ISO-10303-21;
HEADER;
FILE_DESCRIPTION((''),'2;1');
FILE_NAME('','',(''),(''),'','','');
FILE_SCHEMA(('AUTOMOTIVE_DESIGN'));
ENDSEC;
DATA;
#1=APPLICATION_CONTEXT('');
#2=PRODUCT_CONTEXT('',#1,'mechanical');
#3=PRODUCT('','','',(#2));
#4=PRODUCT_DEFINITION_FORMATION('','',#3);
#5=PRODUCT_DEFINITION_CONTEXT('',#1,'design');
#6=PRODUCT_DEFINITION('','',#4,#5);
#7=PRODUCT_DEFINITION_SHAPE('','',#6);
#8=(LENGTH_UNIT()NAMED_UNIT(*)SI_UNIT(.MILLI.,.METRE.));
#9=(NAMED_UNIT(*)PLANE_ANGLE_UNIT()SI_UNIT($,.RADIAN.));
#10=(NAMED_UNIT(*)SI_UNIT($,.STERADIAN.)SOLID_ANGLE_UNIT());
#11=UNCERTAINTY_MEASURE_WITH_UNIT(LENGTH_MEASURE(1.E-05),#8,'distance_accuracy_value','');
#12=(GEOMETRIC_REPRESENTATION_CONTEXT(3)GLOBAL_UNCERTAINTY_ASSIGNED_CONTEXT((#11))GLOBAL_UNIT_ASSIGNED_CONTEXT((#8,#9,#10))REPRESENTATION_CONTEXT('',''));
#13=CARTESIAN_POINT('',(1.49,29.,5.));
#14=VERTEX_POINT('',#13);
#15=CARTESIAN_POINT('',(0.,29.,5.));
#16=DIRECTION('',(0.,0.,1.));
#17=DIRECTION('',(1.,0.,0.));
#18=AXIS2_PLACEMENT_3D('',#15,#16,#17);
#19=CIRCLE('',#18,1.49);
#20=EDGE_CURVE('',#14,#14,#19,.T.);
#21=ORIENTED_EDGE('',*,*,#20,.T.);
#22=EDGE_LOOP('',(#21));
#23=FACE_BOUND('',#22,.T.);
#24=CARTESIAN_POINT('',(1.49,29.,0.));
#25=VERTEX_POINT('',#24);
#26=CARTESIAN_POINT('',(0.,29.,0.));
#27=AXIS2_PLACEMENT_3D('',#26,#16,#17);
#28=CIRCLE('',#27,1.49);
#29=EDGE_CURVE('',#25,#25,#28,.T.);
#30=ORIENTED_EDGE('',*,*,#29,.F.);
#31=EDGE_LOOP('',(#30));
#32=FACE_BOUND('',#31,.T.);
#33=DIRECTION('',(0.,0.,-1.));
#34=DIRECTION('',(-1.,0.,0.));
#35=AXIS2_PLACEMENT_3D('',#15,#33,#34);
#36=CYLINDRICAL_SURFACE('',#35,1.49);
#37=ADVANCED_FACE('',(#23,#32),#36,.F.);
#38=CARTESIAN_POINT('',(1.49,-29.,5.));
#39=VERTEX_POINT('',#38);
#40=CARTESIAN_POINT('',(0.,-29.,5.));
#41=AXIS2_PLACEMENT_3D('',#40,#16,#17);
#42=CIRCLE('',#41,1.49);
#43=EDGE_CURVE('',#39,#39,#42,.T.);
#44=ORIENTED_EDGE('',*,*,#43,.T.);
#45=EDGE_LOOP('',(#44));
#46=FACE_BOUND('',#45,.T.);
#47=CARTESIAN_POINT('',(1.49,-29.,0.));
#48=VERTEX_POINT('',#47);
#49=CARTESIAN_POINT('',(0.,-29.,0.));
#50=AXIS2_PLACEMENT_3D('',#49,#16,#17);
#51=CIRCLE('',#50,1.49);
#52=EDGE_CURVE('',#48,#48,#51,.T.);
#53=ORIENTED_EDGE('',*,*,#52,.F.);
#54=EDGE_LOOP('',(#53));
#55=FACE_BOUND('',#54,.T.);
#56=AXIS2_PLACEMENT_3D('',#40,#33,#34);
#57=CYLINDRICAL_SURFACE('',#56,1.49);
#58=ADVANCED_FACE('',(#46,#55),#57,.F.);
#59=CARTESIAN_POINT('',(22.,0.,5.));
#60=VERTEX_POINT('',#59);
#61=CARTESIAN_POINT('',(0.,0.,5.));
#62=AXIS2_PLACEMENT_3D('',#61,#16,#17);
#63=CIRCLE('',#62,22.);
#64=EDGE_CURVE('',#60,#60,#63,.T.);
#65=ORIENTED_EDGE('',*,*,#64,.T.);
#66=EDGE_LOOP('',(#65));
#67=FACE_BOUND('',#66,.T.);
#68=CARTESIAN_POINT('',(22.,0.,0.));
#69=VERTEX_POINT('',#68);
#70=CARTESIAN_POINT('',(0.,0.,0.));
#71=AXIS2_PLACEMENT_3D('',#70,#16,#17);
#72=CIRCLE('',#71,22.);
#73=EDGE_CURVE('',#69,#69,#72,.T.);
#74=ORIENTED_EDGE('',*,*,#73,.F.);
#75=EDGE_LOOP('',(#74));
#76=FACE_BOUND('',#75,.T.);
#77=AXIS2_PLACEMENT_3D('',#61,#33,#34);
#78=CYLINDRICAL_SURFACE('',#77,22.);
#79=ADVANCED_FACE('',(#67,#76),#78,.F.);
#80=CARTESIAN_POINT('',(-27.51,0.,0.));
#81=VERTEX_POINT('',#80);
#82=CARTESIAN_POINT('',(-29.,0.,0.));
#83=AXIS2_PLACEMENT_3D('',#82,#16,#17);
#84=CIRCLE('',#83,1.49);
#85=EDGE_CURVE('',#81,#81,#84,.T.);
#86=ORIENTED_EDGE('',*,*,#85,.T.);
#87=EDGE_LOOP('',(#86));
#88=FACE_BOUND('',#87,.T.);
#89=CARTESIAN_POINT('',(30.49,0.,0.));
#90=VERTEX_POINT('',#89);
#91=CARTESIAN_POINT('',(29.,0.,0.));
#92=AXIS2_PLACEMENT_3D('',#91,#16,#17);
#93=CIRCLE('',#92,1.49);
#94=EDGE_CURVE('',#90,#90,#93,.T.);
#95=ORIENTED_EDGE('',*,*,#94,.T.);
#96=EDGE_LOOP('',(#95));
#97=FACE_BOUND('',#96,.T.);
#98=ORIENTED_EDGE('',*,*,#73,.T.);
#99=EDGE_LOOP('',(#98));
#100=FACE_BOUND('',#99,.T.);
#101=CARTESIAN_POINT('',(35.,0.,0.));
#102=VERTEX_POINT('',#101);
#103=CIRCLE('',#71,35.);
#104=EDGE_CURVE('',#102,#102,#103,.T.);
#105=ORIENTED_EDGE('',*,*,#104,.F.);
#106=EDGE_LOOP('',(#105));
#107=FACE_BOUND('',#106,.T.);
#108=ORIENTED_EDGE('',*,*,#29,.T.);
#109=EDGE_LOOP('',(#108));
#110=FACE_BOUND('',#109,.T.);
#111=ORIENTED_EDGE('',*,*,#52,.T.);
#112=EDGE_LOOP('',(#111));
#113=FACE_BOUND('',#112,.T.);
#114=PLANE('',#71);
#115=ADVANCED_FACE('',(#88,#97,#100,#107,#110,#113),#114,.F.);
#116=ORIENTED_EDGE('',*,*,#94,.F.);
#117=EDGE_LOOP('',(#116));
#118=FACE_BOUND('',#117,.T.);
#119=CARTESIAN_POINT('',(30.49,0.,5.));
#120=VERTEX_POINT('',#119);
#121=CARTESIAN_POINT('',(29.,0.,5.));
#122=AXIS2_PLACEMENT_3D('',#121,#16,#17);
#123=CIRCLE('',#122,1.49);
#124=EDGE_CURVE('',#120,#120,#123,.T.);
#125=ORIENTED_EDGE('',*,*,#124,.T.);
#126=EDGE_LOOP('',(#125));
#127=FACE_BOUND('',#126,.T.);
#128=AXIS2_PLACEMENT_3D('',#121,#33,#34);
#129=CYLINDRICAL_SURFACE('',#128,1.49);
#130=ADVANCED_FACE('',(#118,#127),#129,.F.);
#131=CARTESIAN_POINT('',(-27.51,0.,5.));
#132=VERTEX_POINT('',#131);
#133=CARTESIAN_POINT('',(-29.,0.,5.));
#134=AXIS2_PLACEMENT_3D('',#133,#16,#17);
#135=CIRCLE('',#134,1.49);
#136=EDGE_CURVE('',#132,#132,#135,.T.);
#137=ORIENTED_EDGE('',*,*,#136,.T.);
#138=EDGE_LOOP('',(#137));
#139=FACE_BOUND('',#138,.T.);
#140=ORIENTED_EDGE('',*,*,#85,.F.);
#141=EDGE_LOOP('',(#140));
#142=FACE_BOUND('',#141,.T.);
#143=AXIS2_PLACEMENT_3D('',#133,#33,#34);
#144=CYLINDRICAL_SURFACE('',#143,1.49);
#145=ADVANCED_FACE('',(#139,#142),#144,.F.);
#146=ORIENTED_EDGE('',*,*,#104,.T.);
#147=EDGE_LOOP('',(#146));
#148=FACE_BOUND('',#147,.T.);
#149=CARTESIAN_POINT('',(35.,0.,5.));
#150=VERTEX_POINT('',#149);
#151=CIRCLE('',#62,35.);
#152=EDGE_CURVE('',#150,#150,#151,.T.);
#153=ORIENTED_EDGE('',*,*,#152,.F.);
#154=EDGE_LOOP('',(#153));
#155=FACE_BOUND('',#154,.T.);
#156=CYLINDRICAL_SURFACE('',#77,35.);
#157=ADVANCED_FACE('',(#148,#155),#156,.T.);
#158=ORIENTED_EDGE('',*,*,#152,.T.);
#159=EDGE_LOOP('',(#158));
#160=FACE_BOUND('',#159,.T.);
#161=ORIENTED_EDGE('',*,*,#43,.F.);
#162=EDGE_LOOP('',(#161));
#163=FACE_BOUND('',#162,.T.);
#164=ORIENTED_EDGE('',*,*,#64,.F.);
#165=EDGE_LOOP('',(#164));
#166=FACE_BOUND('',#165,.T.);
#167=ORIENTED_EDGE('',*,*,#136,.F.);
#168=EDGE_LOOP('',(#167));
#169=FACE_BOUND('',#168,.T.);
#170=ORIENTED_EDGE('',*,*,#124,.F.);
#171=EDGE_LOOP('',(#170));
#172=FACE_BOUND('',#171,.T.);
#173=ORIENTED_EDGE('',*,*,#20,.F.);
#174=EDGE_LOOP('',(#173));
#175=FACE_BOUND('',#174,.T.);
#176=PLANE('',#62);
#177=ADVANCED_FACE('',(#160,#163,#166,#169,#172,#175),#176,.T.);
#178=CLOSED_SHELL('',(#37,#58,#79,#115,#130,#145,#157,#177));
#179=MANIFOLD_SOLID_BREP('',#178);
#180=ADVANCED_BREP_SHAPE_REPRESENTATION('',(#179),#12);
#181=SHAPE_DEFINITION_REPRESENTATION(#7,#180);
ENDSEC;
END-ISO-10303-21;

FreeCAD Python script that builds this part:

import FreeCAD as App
import Part
import Sketcher
Q = App.Units.Quantity

doc = App.newDocument("Part")
body = doc.addObject("PartDesign::Body", "Body")

# Sketch on XY plane
sketch1 = body.newObject("Sketcher::SketchObject", "Sketch")
sketch1.AttachmentSupport = (doc.getObject("XY_Plane"), [""])
sketch1.MapMode = "FlatFace"
sketch1.addGeometry([
    Part.Circle(App.Vector(0, 0, 0), App.Vector(0, 0, 1), 35),  # 0
    Part.Circle(App.Vector(0, -29, 0), App.Vector(0, 0, 1), 1.5),  # 1
    Part.Circle(App.Vector(-29, 0, 0), App.Vector(0, 0, 1), 1.5),  # 2
    Part.Circle(App.Vector(0, 0, 0), App.Vector(0, 0, 1), 22),  # 3
    Part.Circle(App.Vector(29, 0, 0), App.Vector(0, 0, 1), 1.5),  # 4
    Part.Circle(App.Vector(0, 29, 0), App.Vector(0, 0, 1), 1.5),  # 5
], False)
sketch1.addConstraint([
    Sketcher.Constraint("Coincident", 0, 3, -1, 1),
    Sketcher.Constraint("Coincident", 3, 3, -1, 1),
    Sketcher.Constraint("Equal", 1, 2),
    Sketcher.Constraint("Equal", 2, 4),
    Sketcher.Constraint("Equal", 4, 5),
    Sketcher.Constraint("Symmetric", 2, 3, 4, 3, -1, 1),
    Sketcher.Constraint("Symmetric", 1, 3, 5, 3, -1, 1),
    Sketcher.Constraint("PointOnObject", 1, 3, -2),
    Sketcher.Constraint("PointOnObject", 2, 3, -1),
    Sketcher.Constraint("Diameter", 0, Q("70 mm")),
    Sketcher.Constraint("Diameter", 3, Q("44 mm")),
    Sketcher.Constraint("Diameter", 1, Q("2.98 mm")),
    Sketcher.Constraint("DistanceY", 1, 3, -1, 1, Q("29 mm")),
    Sketcher.Constraint("DistanceX", 2, 3, -1, 1, Q("29 mm")),
])
pad1 = body.newObject("PartDesign::Pad", "Pad")
pad1.Profile = sketch1
pad1.Length = 5

doc.recompute()
